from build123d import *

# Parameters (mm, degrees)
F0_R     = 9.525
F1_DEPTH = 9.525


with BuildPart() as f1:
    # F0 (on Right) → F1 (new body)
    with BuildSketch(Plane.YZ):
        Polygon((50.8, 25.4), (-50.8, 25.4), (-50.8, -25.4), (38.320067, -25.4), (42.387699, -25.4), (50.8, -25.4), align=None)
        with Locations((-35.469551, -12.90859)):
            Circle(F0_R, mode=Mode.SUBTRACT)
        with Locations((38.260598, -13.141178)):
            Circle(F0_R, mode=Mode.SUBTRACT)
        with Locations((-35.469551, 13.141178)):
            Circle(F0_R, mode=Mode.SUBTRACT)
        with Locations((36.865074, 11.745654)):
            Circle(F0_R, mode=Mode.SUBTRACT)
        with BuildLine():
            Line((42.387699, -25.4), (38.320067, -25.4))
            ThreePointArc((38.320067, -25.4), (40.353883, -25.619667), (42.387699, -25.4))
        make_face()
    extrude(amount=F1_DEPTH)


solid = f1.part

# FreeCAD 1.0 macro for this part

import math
import FreeCAD as App
import Part
import Sketcher

V = App.Vector
Q = App.Units.Quantity

doc = App.newDocument("Part")
body = doc.addObject("PartDesign::Body", "Body")

# Sketch on YZ plane
sketch1 = body.newObject("Sketcher::SketchObject", "Sketch")
sketch1.AttachmentSupport = (doc.getObject("YZ_Plane"), [""])
sketch1.MapMode = "FlatFace"
sketch1.addGeometry([
    Part.LineSegment(V(50.8, 25.4, 0), V(-50.8, 25.4, 0)),  # 0
    Part.LineSegment(V(-50.8, 25.4, 0), V(-50.8, -25.4, 0)),  # 1
    Part.LineSegment(V(-50.8, -25.4, 0), V(38.3, -25.4, 0)),  # 2
    Part.ArcOfCircle(Part.Circle(V(40.4, -16.1, 0), V(0, 0, 1), 9.5), math.radians(-102), math.radians(-78)),  # 3
    Part.LineSegment(V(42.4, -25.4, 0), V(50.8, -25.4, 0)),  # 4
    Part.LineSegment(V(50.8, -25.4, 0), V(50.8, 25.4, 0)),  # 5
    Part.Circle(V(-35.5, -12.9, 0), V(0, 0, 1), 9.5),  # 6
    Part.Circle(V(38.3, -13.1, 0), V(0, 0, 1), 9.5),  # 7
    Part.Circle(V(-35.5, 13.1, 0), V(0, 0, 1), 9.5),  # 8
    Part.Circle(V(36.9, 11.7, 0), V(0, 0, 1), 9.5),  # 9
], False)
sketch1.addConstraint([
    Sketcher.Constraint("Coincident", 0, 2, 1, 1),
    Sketcher.Constraint("Coincident", 1, 2, 2, 1),
    Sketcher.Constraint("Coincident", 2, 2, 3, 1),
    Sketcher.Constraint("Coincident", 3, 2, 4, 1),
    Sketcher.Constraint("Coincident", 4, 2, 5, 1),
    Sketcher.Constraint("Coincident", 5, 2, 0, 1),
    Sketcher.Constraint("Horizontal", 0),
    Sketcher.Constraint("Vertical", 1),
    Sketcher.Constraint("Horizontal", 2),
    Sketcher.Constraint("Horizontal", 4),
    Sketcher.Constraint("Vertical", 5),
    Sketcher.Constraint("Equal", 6, 7),
    Sketcher.Constraint("Equal", 7, 8),
    Sketcher.Constraint("Equal", 8, 9),
    Sketcher.Constraint("Symmetric", 0, 2, 4, 2, -1, 1),
    Sketcher.Constraint("Horizontal", 2, 2, 3, 2),
    Sketcher.Constraint("Vertical", 6, 3, 8, 3),
    Sketcher.Constraint("Diameter", 6, Q("0.75 in")),
    Sketcher.Constraint("DistanceX", 0, 2, 0, 1, Q("4 in")),
    Sketcher.Constraint("DistanceY", 1, 2, 1, 1, Q("2 in")),
    Sketcher.Constraint("Radius", 3, 9.525011),
    Sketcher.Constraint("DistanceX", 4, 1, 4, 2, 8.412301),
    Sketcher.Constraint("DistanceX", -1, 1, 7, 3, 38.260598),
    Sketcher.Constraint("DistanceX", 2, 1, 2, 2, 89.120067),
    Sketcher.Constraint("DistanceX", 6, 3, -1, 1, 35.469551),
    Sketcher.Constraint("DistanceY", 6, 3, -1, 1, 12.90859),
    Sketcher.Constraint("DistanceY", 3, 3, 7, 3, 2.953478),
    Sketcher.Constraint("DistanceY", 6, 3, 8, 3, 26.049768),
    Sketcher.Constraint("DistanceY", 7, 3, 9, 3, 24.886832),
    Sketcher.Constraint("DistanceX", 9, 3, 3, 3, 3.488809),
])
pad1 = body.newObject("PartDesign::Pad", "Pad")
pad1.Profile = sketch1
pad1.Length = Q("0.375 in")

doc.recompute()
